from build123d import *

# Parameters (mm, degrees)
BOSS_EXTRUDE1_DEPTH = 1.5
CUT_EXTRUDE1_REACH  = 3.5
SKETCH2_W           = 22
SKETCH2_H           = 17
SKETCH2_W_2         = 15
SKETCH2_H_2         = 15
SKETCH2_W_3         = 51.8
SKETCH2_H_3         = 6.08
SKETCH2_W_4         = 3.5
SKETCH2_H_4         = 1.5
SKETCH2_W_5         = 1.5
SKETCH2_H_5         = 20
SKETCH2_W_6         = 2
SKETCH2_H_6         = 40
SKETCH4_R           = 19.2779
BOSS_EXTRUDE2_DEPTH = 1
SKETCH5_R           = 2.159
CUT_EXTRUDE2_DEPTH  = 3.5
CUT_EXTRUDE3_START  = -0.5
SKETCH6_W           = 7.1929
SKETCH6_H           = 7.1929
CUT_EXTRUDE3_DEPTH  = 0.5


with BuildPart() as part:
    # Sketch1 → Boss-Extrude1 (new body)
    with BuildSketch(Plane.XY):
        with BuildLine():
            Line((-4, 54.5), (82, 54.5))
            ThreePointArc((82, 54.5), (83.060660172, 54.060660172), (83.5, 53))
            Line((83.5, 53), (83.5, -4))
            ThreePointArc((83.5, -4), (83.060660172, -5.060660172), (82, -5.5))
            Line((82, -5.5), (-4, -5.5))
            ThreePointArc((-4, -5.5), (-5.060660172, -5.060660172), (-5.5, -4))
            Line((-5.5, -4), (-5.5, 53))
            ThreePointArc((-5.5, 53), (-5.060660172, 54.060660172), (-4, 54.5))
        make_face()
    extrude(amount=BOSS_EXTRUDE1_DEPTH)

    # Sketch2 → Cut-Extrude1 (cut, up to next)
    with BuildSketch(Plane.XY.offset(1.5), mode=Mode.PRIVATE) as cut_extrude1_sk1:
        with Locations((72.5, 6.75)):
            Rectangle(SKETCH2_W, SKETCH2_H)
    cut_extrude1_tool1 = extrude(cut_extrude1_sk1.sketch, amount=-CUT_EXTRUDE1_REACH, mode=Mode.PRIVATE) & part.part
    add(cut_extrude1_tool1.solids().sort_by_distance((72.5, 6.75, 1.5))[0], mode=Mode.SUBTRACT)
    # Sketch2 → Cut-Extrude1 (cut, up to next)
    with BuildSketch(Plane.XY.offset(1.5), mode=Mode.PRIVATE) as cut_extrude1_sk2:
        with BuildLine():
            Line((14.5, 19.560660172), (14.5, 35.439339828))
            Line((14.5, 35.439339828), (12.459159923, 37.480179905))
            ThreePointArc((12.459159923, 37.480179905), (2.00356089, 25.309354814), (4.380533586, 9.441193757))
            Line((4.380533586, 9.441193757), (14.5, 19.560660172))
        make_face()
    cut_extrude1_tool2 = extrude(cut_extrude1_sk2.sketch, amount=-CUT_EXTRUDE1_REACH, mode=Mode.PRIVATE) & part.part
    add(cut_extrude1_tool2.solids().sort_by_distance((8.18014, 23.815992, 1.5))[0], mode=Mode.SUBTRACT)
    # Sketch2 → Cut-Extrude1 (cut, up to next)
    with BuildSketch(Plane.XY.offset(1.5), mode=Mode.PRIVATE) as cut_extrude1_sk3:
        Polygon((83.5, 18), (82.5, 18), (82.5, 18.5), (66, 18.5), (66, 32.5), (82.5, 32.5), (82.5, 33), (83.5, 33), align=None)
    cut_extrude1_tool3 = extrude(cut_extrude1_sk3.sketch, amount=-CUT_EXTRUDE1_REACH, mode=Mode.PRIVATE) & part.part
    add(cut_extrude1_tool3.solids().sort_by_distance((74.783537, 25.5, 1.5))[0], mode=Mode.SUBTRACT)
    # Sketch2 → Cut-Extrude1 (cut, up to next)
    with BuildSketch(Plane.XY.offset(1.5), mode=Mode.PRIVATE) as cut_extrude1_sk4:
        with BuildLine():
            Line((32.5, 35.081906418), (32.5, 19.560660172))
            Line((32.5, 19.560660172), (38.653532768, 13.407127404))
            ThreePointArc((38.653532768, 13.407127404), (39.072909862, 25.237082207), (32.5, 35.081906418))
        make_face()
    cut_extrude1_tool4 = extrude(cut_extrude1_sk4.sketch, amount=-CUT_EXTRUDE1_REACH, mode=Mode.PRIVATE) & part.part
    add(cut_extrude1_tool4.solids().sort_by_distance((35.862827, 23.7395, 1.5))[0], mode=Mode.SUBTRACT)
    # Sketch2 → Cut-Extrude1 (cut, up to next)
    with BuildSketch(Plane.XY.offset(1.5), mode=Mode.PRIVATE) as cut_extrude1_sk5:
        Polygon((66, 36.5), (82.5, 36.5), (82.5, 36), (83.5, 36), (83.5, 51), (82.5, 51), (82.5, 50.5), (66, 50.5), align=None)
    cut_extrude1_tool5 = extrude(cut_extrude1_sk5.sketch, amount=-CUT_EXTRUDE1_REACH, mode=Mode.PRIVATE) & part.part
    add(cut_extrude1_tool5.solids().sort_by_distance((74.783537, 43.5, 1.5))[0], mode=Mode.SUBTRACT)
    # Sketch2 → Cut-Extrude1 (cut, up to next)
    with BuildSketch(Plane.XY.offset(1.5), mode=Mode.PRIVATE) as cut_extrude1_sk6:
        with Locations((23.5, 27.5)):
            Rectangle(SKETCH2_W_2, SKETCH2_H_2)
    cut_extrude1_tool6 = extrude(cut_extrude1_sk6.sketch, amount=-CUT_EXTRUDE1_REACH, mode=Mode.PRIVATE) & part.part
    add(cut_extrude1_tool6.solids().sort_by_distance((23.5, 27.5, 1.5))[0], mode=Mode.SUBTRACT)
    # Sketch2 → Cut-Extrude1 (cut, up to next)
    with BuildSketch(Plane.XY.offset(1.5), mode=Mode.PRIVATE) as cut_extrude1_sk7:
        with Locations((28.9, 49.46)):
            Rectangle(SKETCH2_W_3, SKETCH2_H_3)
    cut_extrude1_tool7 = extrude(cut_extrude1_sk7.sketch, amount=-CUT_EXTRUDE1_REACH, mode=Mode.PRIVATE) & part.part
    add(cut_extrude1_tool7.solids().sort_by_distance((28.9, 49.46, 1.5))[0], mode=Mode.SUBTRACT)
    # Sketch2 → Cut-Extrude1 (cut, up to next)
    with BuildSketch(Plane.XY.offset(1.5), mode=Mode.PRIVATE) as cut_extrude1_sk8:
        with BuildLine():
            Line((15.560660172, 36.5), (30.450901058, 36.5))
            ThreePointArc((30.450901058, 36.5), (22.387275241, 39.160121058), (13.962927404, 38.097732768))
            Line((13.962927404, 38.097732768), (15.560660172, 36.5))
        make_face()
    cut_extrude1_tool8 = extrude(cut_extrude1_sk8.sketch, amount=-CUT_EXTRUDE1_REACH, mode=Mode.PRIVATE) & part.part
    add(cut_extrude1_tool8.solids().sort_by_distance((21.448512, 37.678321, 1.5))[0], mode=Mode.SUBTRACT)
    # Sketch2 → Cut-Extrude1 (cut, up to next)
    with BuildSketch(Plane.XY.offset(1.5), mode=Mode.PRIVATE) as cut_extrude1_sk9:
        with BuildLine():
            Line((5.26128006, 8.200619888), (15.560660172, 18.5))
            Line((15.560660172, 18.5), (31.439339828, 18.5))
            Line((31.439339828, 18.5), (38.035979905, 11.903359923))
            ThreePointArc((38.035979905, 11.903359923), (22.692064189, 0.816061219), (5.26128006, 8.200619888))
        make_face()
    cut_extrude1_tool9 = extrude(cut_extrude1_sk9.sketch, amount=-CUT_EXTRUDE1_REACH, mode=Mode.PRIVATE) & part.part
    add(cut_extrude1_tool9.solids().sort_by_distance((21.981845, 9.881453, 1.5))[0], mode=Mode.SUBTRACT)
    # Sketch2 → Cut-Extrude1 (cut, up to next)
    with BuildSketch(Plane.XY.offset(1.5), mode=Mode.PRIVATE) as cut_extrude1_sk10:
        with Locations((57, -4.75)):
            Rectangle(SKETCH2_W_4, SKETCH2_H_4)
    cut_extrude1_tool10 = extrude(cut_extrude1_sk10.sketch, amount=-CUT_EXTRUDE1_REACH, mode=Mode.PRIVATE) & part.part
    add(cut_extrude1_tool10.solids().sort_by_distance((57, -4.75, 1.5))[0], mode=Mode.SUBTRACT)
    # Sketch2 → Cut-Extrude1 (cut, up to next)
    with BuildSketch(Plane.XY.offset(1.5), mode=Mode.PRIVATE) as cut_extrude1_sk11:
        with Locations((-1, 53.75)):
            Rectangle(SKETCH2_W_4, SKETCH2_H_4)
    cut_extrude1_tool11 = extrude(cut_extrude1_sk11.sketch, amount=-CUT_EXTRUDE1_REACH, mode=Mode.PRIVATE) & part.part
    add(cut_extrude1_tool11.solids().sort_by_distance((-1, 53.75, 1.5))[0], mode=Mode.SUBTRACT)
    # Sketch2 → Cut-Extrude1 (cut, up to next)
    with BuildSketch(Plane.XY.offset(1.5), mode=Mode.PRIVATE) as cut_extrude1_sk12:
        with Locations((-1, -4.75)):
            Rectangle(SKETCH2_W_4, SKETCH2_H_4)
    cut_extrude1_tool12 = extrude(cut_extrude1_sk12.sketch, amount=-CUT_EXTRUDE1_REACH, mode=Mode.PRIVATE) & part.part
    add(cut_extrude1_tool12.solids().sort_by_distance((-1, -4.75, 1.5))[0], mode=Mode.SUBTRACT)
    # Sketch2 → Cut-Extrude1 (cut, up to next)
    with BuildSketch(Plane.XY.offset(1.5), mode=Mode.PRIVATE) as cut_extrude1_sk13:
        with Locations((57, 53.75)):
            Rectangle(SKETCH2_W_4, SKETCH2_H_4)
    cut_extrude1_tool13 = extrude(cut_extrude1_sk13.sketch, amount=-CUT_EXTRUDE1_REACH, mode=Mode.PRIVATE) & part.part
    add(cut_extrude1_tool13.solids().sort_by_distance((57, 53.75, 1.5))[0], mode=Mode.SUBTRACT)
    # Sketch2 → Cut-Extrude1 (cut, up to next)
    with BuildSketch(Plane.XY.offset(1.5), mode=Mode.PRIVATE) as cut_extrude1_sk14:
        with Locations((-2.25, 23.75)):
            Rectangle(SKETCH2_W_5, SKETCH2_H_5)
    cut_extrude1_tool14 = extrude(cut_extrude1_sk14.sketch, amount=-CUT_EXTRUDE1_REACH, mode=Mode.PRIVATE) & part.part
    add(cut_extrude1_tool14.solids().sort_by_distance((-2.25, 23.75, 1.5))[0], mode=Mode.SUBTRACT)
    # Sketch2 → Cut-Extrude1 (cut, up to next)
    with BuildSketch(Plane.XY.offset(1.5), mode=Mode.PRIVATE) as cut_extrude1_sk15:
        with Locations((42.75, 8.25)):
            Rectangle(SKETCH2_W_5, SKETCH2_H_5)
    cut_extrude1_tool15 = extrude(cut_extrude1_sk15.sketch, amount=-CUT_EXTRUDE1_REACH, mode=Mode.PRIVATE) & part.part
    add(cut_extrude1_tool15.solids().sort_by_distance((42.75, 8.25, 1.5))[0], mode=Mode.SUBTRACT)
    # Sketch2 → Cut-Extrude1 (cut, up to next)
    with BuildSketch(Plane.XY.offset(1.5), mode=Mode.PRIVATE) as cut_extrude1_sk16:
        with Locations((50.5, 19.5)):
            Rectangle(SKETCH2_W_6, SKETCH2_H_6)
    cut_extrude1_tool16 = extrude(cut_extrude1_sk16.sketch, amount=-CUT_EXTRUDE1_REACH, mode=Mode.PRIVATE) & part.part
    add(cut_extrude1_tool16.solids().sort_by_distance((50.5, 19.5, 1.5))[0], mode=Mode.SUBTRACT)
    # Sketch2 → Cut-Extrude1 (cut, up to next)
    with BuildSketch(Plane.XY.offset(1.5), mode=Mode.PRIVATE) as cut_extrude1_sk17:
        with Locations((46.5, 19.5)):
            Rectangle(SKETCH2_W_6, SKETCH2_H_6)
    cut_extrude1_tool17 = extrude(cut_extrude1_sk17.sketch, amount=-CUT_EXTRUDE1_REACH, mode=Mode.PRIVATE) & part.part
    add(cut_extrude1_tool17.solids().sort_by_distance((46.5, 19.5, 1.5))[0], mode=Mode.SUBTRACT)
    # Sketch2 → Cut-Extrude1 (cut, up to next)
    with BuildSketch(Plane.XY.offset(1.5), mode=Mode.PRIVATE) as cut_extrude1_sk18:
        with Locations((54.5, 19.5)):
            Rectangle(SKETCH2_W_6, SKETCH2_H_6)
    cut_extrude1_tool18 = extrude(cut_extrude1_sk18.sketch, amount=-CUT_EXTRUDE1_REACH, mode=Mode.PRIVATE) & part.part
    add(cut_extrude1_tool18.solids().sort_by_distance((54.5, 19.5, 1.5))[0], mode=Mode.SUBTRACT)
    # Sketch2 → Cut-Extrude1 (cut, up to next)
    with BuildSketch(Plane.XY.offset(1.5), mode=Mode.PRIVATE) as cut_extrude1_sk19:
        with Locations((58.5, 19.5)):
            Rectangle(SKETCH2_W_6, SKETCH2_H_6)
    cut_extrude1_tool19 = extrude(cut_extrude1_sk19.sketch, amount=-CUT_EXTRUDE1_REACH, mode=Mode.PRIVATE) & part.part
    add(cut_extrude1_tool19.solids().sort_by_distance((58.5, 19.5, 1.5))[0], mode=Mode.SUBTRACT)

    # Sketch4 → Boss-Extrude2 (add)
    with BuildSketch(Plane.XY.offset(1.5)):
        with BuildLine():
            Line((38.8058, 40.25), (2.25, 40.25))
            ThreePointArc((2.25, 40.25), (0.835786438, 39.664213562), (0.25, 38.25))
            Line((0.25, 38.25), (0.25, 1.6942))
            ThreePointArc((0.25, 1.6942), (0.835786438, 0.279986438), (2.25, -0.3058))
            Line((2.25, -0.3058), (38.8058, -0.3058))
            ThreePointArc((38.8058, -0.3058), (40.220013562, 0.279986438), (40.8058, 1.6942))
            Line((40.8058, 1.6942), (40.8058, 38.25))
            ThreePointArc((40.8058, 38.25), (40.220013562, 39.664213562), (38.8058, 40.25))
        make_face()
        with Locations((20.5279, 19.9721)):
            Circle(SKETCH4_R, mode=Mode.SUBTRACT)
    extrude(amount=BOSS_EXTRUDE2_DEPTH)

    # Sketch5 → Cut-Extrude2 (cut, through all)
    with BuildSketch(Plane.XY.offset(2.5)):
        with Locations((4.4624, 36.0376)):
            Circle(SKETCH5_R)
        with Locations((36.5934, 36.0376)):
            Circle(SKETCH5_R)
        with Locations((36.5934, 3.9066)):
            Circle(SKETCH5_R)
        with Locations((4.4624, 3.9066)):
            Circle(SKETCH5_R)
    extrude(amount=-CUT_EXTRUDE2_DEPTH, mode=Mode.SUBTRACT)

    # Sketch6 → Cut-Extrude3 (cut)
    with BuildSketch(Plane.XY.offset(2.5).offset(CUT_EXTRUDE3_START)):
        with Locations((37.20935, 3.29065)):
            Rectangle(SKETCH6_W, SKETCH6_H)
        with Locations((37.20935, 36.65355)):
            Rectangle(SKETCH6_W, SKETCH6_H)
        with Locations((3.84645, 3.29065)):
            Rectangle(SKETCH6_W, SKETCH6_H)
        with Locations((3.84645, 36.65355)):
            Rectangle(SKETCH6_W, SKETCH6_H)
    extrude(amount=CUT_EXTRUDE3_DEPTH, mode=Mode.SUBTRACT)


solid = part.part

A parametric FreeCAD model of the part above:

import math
import FreeCAD as App
import Part
import Sketcher
Q = App.Units.Quantity


def add_polygon(sketch, points):
    """Adds a closed chain of lines whose ends are joined by coincident constraints."""
    first, n = sketch.GeometryCount, len(points)
    for a, b in zip(points, points[1:] + points[:1]):
        sketch.addGeometry(Part.LineSegment(App.Vector(*a, 0), App.Vector(*b, 0)), False)
    for i in range(n):
        sketch.addConstraint(Sketcher.Constraint("Coincident", first + i, 2, first + (i + 1) % n, 1))

doc = App.newDocument("Part")
body = doc.addObject("PartDesign::Body", "Body")

# Sketch on XY plane
sketch1 = body.newObject("Sketcher::SketchObject", "Sketch")
sketch1.AttachmentSupport = (doc.getObject("XY_Plane"), [""])
sketch1.MapMode = "FlatFace"
sketch1.addGeometry([
    Part.LineSegment(App.Vector(82, 54.5, 0), App.Vector(-4, 54.5, 0)),  # 0
    Part.ArcOfCircle(Part.Circle(App.Vector(-4, 53, 0), App.Vector(0, 0, 1), 1.5), math.radians(90), math.radians(180)),  # 1
    Part.LineSegment(App.Vector(-5.5, 53, 0), App.Vector(-5.5, -4, 0)),  # 2
    Part.ArcOfCircle(Part.Circle(App.Vector(-4, -4, 0), App.Vector(0, 0, 1), 1.5), math.radians(180), math.radians(270)),  # 3
    Part.LineSegment(App.Vector(-4, -5.5, 0), App.Vector(82, -5.5, 0)),  # 4
    Part.ArcOfCircle(Part.Circle(App.Vector(82, -4, 0), App.Vector(0, 0, 1), 1.5), math.radians(-90), math.radians(0)),  # 5
    Part.LineSegment(App.Vector(83.5, -4, 0), App.Vector(83.5, 53, 0)),  # 6
    Part.ArcOfCircle(Part.Circle(App.Vector(82, 53, 0), App.Vector(0, 0, 1), 1.5), math.radians(0), math.radians(90)),  # 7
], False)
sketch1.addConstraint([
    Sketcher.Constraint("Tangent", 0, 2, 1, 1),
    Sketcher.Constraint("Tangent", 1, 2, 2, 1),
    Sketcher.Constraint("Tangent", 2, 2, 3, 1),
    Sketcher.Constraint("Tangent", 3, 2, 4, 1),
    Sketcher.Constraint("Tangent", 4, 2, 5, 1),
    Sketcher.Constraint("Tangent", 5, 2, 6, 1),
    Sketcher.Constraint("Tangent", 6, 2, 7, 1),
    Sketcher.Constraint("Tangent", 7, 2, 0, 1),
    Sketcher.Constraint("Horizontal", 0),
    Sketcher.Constraint("Vertical", 2),
    Sketcher.Constraint("Horizontal", 4),
    Sketcher.Constraint("Vertical", 6),
    Sketcher.Constraint("Equal", 1, 3),
    Sketcher.Constraint("Equal", 3, 5),
    Sketcher.Constraint("Equal", 5, 7),
    Sketcher.Constraint("Radius", 1, 1.5),
    Sketcher.Constraint("DistanceX", 0, 2, 0, 1, 86.0),
    Sketcher.Constraint("DistanceY", 2, 2, 2, 1, 57.0),
    Sketcher.Constraint("DistanceX", 1, 3, -1, 1, 4.0),
    Sketcher.Constraint("DistanceY", -1, 1, 1, 3, 53.0),
])
pad1 = body.newObject("PartDesign::Pad", "Pad")
pad1.Profile = sketch1
pad1.Length = 1.5

# Sketch on XY plane
sketch2 = body.newObject("Sketcher::SketchObject", "Sketch001")
sketch2.AttachmentSupport = (doc.getObject("XY_Plane"), [""])
sketch2.MapMode = "FlatFace"
sketch2.AttachmentOffset = App.Placement(App.Vector(0, 0, 1.5), App.Rotation())
add_polygon(sketch2, [(62, 15), (62, -2), (84, -2), (84, 15)])  # lines 0-3
sketch2.addConstraint([
    Sketcher.Constraint("Vertical", 0),
    Sketcher.Constraint("Horizontal", 1),
    Sketcher.Constraint("Vertical", 2),
    Sketcher.Constraint("Horizontal", 3),
    Sketcher.Constraint("DistanceX", 1, 1, 1, 2, 22.0),
    Sketcher.Constraint("DistanceY", 0, 2, 0, 1, 17.0),
    Sketcher.Constraint("DistanceX", -1, 1, 0, 2, 61.5),
    Sketcher.Constraint("DistanceY", 0, 2, -1, 1, 1.75),
])
pocket1 = body.newObject("PartDesign::Pocket", "Pocket")
pocket1.Profile = sketch2
pocket1.Type = "UpToFirst"

# Sketch on XY plane
sketch3 = body.newObject("Sketcher::SketchObject", "Sketch002")
sketch3.AttachmentSupport = (doc.getObject("XY_Plane"), [""])
sketch3.MapMode = "FlatFace"
sketch3.AttachmentOffset = App.Placement(App.Vector(0, 0, 1.5), App.Rotation())
sketch3.addGeometry([
    Part.LineSegment(App.Vector(14.5, 19.6, 0), App.Vector(14.5, 35.4, 0)),
    Part.LineSegment(App.Vector(14.5, 35.4, 0), App.Vector(12.5, 37.5, 0)),
    Part.ArcOfCircle(Part.Circle(App.Vector(20.5, 20, 0), App.Vector(0, 0, 1), 19.3), math.radians(115), math.radians(213)),
    Part.LineSegment(App.Vector(4.4, 9.4, 0), App.Vector(14.5, 19.6, 0)),
], False)
sketch3.addConstraint([
    Sketcher.Constraint("Coincident", 0, 2, 1, 1),
    Sketcher.Constraint("Coincident", 1, 2, 2, 1),
    Sketcher.Constraint("Coincident", 2, 2, 3, 1),
    Sketcher.Constraint("Coincident", 3, 2, 0, 1),
    Sketcher.Constraint("Vertical", 0),
    Sketcher.Constraint("Perpendicular", 1, 3),
    Sketcher.Constraint("Angle", 1, Q("135 deg")),
    Sketcher.Constraint("DistanceX", -1, 1, 0, 2, 14.5),
    Sketcher.Constraint("Radius", 2, 19.2779),
    Sketcher.Constraint("DistanceY", 0, 1, 0, 2, 15.87868),
    Sketcher.Constraint("DistanceX", -1, 1, 2, 3, 20.5279),
    Sketcher.Constraint("DistanceY", -1, 1, 2, 3, 19.9721),
    Sketcher.Constraint("DistanceY", -1, 1, 0, 2, 35.43934),
])
pocket2 = body.newObject("PartDesign::Pocket", "Pocket001")
pocket2.Profile = sketch3
pocket2.Type = "UpToFirst"

# Sketch on XY plane
sketch4 = body.newObject("Sketcher::SketchObject", "Sketch003")
sketch4.AttachmentSupport = (doc.getObject("XY_Plane"), [""])
sketch4.MapMode = "FlatFace"
sketch4.AttachmentOffset = App.Placement(App.Vector(0, 0, 1.5), App.Rotation())
add_polygon(sketch4, [(82.5, 18), (83.5, 18), (83.5, 33), (82.5, 33), (82.5, 32.5), (66, 32.5), (66, 18.5), (82.5, 18.5)])  # lines 0-7
sketch4.addConstraint([
    Sketcher.Constraint("Horizontal", 0),
    Sketcher.Constraint("Vertical", 1),
    Sketcher.Constraint("Horizontal", 2),
    Sketcher.Constraint("Vertical", 3),
    Sketcher.Constraint("Horizontal", 4),
    Sketcher.Constraint("Vertical", 5),
    Sketcher.Constraint("Horizontal", 6),
    Sketcher.Constraint("Vertical", 7),
    Sketcher.Constraint("Vertical", 3, 2, 6, 2),
    Sketcher.Constraint("Equal", 3, 7),
    Sketcher.Constraint("DistanceX", 0, 1, 0, 2, 1.0),
    Sketcher.Constraint("DistanceY", 1, 1, 1, 2, 15.0),
    Sketcher.Constraint("DistanceY", 5, 2, 5, 1, 14.0),
    Sketcher.Constraint("DistanceX", 4, 2, 4, 1, 16.5),
    Sketcher.Constraint("DistanceY", -1, 1, 0, 2, 18.0),
    Sketcher.Constraint("DistanceX", -1, 1, 4, 2, 66.0),
])
pocket3 = body.newObject("PartDesign::Pocket", "Pocket002")
pocket3.Profile = sketch4
pocket3.Type = "UpToFirst"

# Sketch on XY plane
sketch5 = body.newObject("Sketcher::SketchObject", "Sketch004")
sketch5.AttachmentSupport = (doc.getObject("XY_Plane"), [""])
sketch5.MapMode = "FlatFace"
sketch5.AttachmentOffset = App.Placement(App.Vector(0, 0, 1.5), App.Rotation())
sketch5.addGeometry([
    Part.LineSegment(App.Vector(32, 35, 0), App.Vector(32, 20, 0)),
    Part.LineSegment(App.Vector(32, 20, 0), App.Vector(39, 13, 0)),
    Part.ArcOfCircle(Part.Circle(App.Vector(21, 20, 0), App.Vector(0, 0, 1), 19), math.radians(-20), math.radians(52)),
], False)
sketch5.addConstraint([
    Sketcher.Constraint("Coincident", 0, 2, 1, 1),
    Sketcher.Constraint("Coincident", 1, 2, 2, 1),
    Sketcher.Constraint("Coincident", 2, 2, 0, 1),
    Sketcher.Constraint("Vertical", 0),
    Sketcher.Constraint("Angle", 1, Q("-45 deg")),
    Sketcher.Constraint("DistanceX", -1, 1, 0, 2, 32.5),
    Sketcher.Constraint("Radius", 2, 19.2779),
    Sketcher.Constraint("DistanceX", -1, 1, 2, 3, 20.5279),
    Sketcher.Constraint("DistanceY", -1, 1, 2, 3, 19.9721),
    Sketcher.Constraint("Distance", 1, 8.702409),
])
pocket4 = body.newObject("PartDesign::Pocket", "Pocket003")
pocket4.Profile = sketch5
pocket4.Type = "UpToFirst"

# Sketch on XY plane
sketch6 = body.newObject("Sketcher::SketchObject", "Sketch005")
sketch6.AttachmentSupport = (doc.getObject("XY_Plane"), [""])
sketch6.MapMode = "FlatFace"
sketch6.AttachmentOffset = App.Placement(App.Vector(0, 0, 1.5), App.Rotation())
add_polygon(sketch6, [(66, 36.5), (82.5, 36.5), (82.5, 36), (83.5, 36), (83.5, 51), (82.5, 51), (82.5, 50.5), (66, 50.5)])  # lines 0-7
sketch6.addConstraint([
    Sketcher.Constraint("Horizontal", 0),
    Sketcher.Constraint("Vertical", 1),
    Sketcher.Constraint("Horizontal", 2),
    Sketcher.Constraint("Vertical", 3),
    Sketcher.Constraint("Horizontal", 4),
    Sketcher.Constraint("Vertical", 5),
    Sketcher.Constraint("Horizontal", 6),
    Sketcher.Constraint("Vertical", 7),
    Sketcher.Constraint("Vertical", 1, 2, 4, 2),
    Sketcher.Constraint("Equal", 1, 5),
    Sketcher.Constraint("DistanceX", 2, 1, 2, 2, 1.0),
    Sketcher.Constraint("DistanceY", 3, 1, 3, 2, 15.0),
    Sketcher.Constraint("DistanceY", 7, 2, 7, 1, 14.0),
    Sketcher.Constraint("DistanceX", 0, 1, 0, 2, 16.5),
    Sketcher.Constraint("DistanceY", -1, 1, 1, 2, 36.0),
    Sketcher.Constraint("DistanceX", -1, 1, 6, 2, 66.0),
])
pocket5 = body.newObject("PartDesign::Pocket", "Pocket004")
pocket5.Profile = sketch6
pocket5.Type = "UpToFirst"

# Sketch on XY plane
sketch7 = body.newObject("Sketcher::SketchObject", "Sketch006")
sketch7.AttachmentSupport = (doc.getObject("XY_Plane"), [""])
sketch7.MapMode = "FlatFace"
sketch7.AttachmentOffset = App.Placement(App.Vector(0, 0, 1.5), App.Rotation())
add_polygon(sketch7, [(16, 35), (16, 20), (31, 20), (31, 35)])  # lines 0-3
sketch7.addConstraint([
    Sketcher.Constraint("Vertical", 0),
    Sketcher.Constraint("Horizontal", 1),
    Sketcher.Constraint("Vertical", 2),
    Sketcher.Constraint("Horizontal", 3),
    Sketcher.Constraint("Equal", 3, 0),
    Sketcher.Constraint("DistanceX", 1, 1, 1, 2, 15.0),
    Sketcher.Constraint("DistanceX", -1, 1, 0, 2, 16.0),
    Sketcher.Constraint("DistanceY", -1, 1, 0, 2, 20.0),
])
pocket6 = body.newObject("PartDesign::Pocket", "Pocket005")
pocket6.Profile = sketch7
pocket6.Type = "UpToFirst"

# Sketch on XY plane
sketch8 = body.newObject("Sketcher::SketchObject", "Sketch007")
sketch8.AttachmentSupport = (doc.getObject("XY_Plane"), [""])
sketch8.MapMode = "FlatFace"
sketch8.AttachmentOffset = App.Placement(App.Vector(0, 0, 1.5), App.Rotation())
add_polygon(sketch8, [(3, 52), (3, 46), (55, 46), (55, 52)])  # lines 0-3
sketch8.addConstraint([
    Sketcher.Constraint("Vertical", 0),
    Sketcher.Constraint("Horizontal", 1),
    Sketcher.Constraint("Vertical", 2),
    Sketcher.Constraint("Horizontal", 3),
    Sketcher.Constraint("DistanceX", 1, 1, 1, 2, 51.8),
    Sketcher.Constraint("DistanceX", -1, 1, 0, 2, 3.0),
    Sketcher.Constraint("DistanceY", 0, 2, 0, 1, 6.08),
    Sketcher.Constraint("DistanceY", -1, 1, 2, 2, 52.5),
])
pocket7 = body.newObject("PartDesign::Pocket", "Pocket006")
pocket7.Profile = sketch8
pocket7.Type = "UpToFirst"

# Sketch on XY plane
sketch9 = body.newObject("Sketcher::SketchObject", "Sketch008")
sketch9.AttachmentSupport = (doc.getObject("XY_Plane"), [""])
sketch9.MapMode = "FlatFace"
sketch9.AttachmentOffset = App.Placement(App.Vector(0, 0, 1.5), App.Rotation())
sketch9.addGeometry([
    Part.LineSegment(App.Vector(15.6, 36.5, 0), App.Vector(30.5, 36.5, 0)),
    Part.ArcOfCircle(Part.Circle(App.Vector(20.5, 20, 0), App.Vector(0, 0, 1), 19.3), math.radians(59), math.radians(110)),
    Part.LineSegment(App.Vector(14, 38.1, 0), App.Vector(15.6, 36.5, 0)),
], False)
sketch9.addConstraint([
    Sketcher.Constraint("Coincident", 0, 2, 1, 1),
    Sketcher.Constraint("Coincident", 1, 2, 2, 1),
    Sketcher.Constraint("Coincident", 2, 2, 0, 1),
    Sketcher.Constraint("Horizontal", 0),
    Sketcher.Constraint("Angle", 2, Q("-45 deg")),
    Sketcher.Constraint("DistanceY", -1, 1, 0, 2, 36.5),
    Sketcher.Constraint("Radius", 1, 19.2779),
    Sketcher.Constraint("DistanceX", 1, 3, 0, 2, 9.923001),
    Sketcher.Constraint("DistanceX", 0, 1, 0, 2, 14.890241),
    Sketcher.Constraint("DistanceX", -1, 1, 1, 3, 20.5279),
])
pocket8 = body.newObject("PartDesign::Pocket", "Pocket007")
pocket8.Profile = sketch9
pocket8.Type = "UpToFirst"

# Sketch on XY plane
sketch10 = body.newObject("Sketcher::SketchObject", "Sketch009")
sketch10.AttachmentSupport = (doc.getObject("XY_Plane"), [""])
sketch10.MapMode = "FlatFace"
sketch10.AttachmentOffset = App.Placement(App.Vector(0, 0, 1.5), App.Rotation())
sketch10.addGeometry([
    Part.LineSegment(App.Vector(16, 18, 0), App.Vector(5, 8, 0)),
    Part.ArcOfCircle(Part.Circle(App.Vector(21, 20, 0), App.Vector(0, 0, 1), 19), math.radians(-142), math.radians(-25)),
    Part.LineSegment(App.Vector(38, 12, 0), App.Vector(31, 18, 0)),
    Part.LineSegment(App.Vector(31, 18, 0), App.Vector(16, 18, 0)),
], False)
sketch10.addConstraint([
    Sketcher.Constraint("Coincident", 0, 2, 1, 1),
    Sketcher.Constraint("Coincident", 1, 2, 2, 1),
    Sketcher.Constraint("Coincident", 2, 2, 3, 1),
    Sketcher.Constraint("Coincident", 3, 2, 0, 1),
    Sketcher.Constraint("Horizontal", 3),
    Sketcher.Constraint("Perpendicular", 0, 2),
    Sketcher.Constraint("Angle", 0, Q("-135 deg")),
    Sketcher.Constraint("DistanceY", -1, 1, 2, 2, 18.5),
    Sketcher.Constraint("Radius", 1, 19.2779),
    Sketcher.Constraint("DistanceX", 3, 2, 3, 1, 15.87868),
    Sketcher.Constraint("DistanceX", -1, 1, 1, 3, 20.5279),
    Sketcher.Constraint("DistanceY", -1, 1, 1, 3, 19.9721),
    Sketcher.Constraint("DistanceX", 0, 2, 1, 2, 32.7747),
])
pocket9 = body.newObject("PartDesign::Pocket", "Pocket008")
pocket9.Profile = sketch10
pocket9.Type = "UpToFirst"

# Sketch on XY plane
sketch11 = body.newObject("Sketcher::SketchObject", "Sketch010")
sketch11.AttachmentSupport = (doc.getObject("XY_Plane"), [""])
sketch11.MapMode = "FlatFace"
sketch11.AttachmentOffset = App.Placement(App.Vector(0, 0, 1.5), App.Rotation())
add_polygon(sketch11, [(55.2, -4), (55.2, -5.5), (58.8, -5.5), (58.8, -4)])  # lines 0-3
sketch11.addConstraint([
    Sketcher.Constraint("Vertical", 0),
    Sketcher.Constraint("Horizontal", 1),
    Sketcher.Constraint("Vertical", 2),
    Sketcher.Constraint("Horizontal", 3),
    Sketcher.Constraint("DistanceX", 1, 1, 1, 2, 3.5),
    Sketcher.Constraint("DistanceY", 0, 2, 0, 1, 1.5),
    Sketcher.Constraint("DistanceY", 2, 2, -1, 1, 4.0),
    Sketcher.Constraint("DistanceX", -1, 1, 0, 2, 55.25),
])
pocket10 = body.newObject("PartDesign::Pocket", "Pocket009")
pocket10.Profile = sketch11
pocket10.Type = "UpToFirst"

# Sketch on XY plane
sketch12 = body.newObject("Sketcher::SketchObject", "Sketch011")
sketch12.AttachmentSupport = (doc.getObject("XY_Plane"), [""])
sketch12.MapMode = "FlatFace"
sketch12.AttachmentOffset = App.Placement(App.Vector(0, 0, 1.5), App.Rotation())
add_polygon(sketch12, [(-2.8, 54.5), (-2.8, 53), (0.8, 53), (0.8, 54.5)])  # lines 0-3
sketch12.addConstraint([
    Sketcher.Constraint("Vertical", 0),
    Sketcher.Constraint("Horizontal", 1),
    Sketcher.Constraint("Vertical", 2),
    Sketcher.Constraint("Horizontal", 3),
    Sketcher.Constraint("DistanceX", 1, 1, 1, 2, 3.5),
    Sketcher.Constraint("DistanceY", 0, 2, 0, 1, 1.5),
    Sketcher.Constraint("DistanceY", -1, 1, 0, 2, 53.0),
    Sketcher.Constraint("DistanceX", 0, 2, -1, 1, 2.75),
])
pocket11 = body.newObject("PartDesign::Pocket", "Pocket010")
pocket11.Profile = sketch12
pocket11.Type = "UpToFirst"

# Sketch on XY plane
sketch13 = body.newObject("Sketcher::SketchObject", "Sketch012")
sketch13.AttachmentSupport = (doc.getObject("XY_Plane"), [""])
sketch13.MapMode = "FlatFace"
sketch13.AttachmentOffset = App.Placement(App.Vector(0, 0, 1.5), App.Rotation())
add_polygon(sketch13, [(-2.8, -4), (-2.8, -5.5), (0.8, -5.5), (0.8, -4)])  # lines 0-3
sketch13.addConstraint([
    Sketcher.Constraint("Vertical", 0),
    Sketcher.Constraint("Horizontal", 1),
    Sketcher.Constraint("Vertical", 2),
    Sketcher.Constraint("Horizontal", 3),
    Sketcher.Constraint("DistanceX", 1, 1, 1, 2, 3.5),
    Sketcher.Constraint("DistanceY", 0, 2, 0, 1, 1.5),
    Sketcher.Constraint("DistanceY", 2, 2, -1, 1, 4.0),
    Sketcher.Constraint("DistanceX", 0, 2, -1, 1, 2.75),
])
pocket12 = body.newObject("PartDesign::Pocket", "Pocket011")
pocket12.Profile = sketch13
pocket12.Type = "UpToFirst"

# Sketch on XY plane
sketch14 = body.newObject("Sketcher::SketchObject", "Sketch013")
sketch14.AttachmentSupport = (doc.getObject("XY_Plane"), [""])
sketch14.MapMode = "FlatFace"
sketch14.AttachmentOffset = App.Placement(App.Vector(0, 0, 1.5), App.Rotation())
add_polygon(sketch14, [(55.2, 54.5), (55.2, 53), (58.8, 53), (58.8, 54.5)])  # lines 0-3
sketch14.addConstraint([
    Sketcher.Constraint("Vertical", 0),
    Sketcher.Constraint("Horizontal", 1),
    Sketcher.Constraint("Vertical", 2),
    Sketcher.Constraint("Horizontal", 3),
    Sketcher.Constraint("DistanceX", 1, 1, 1, 2, 3.5),
    Sketcher.Constraint("DistanceY", 0, 2, 0, 1, 1.5),
    Sketcher.Constraint("DistanceY", -1, 1, 0, 2, 53.0),
    Sketcher.Constraint("DistanceX", -1, 1, 0, 2, 55.25),
])
pocket13 = body.newObject("PartDesign::Pocket", "Pocket012")
pocket13.Profile = sketch14
pocket13.Type = "UpToFirst"

# Sketch on XY plane
sketch15 = body.newObject("Sketcher::SketchObject", "Sketch014")
sketch15.AttachmentSupport = (doc.getObject("XY_Plane"), [""])
sketch15.MapMode = "FlatFace"
sketch15.AttachmentOffset = App.Placement(App.Vector(0, 0, 1.5), App.Rotation())
add_polygon(sketch15, [(-3, 33.8), (-3, 13.8), (-1.5, 13.8), (-1.5, 33.8)])  # lines 0-3
sketch15.addConstraint([
    Sketcher.Constraint("Vertical", 0),
    Sketcher.Constraint("Horizontal", 1),
    Sketcher.Constraint("Vertical", 2),
    Sketcher.Constraint("Horizontal", 3),
    Sketcher.Constraint("DistanceY", 0, 2, 0, 1, 20.0),
    Sketcher.Constraint("DistanceX", 1, 1, 1, 2, 1.5),
    Sketcher.Constraint("DistanceX", 0, 2, -1, 1, 3.0),
    Sketcher.Constraint("DistanceY", -1, 1, 0, 2, 13.75),
])
pocket14 = body.newObject("PartDesign::Pocket", "Pocket013")
pocket14.Profile = sketch15
pocket14.Type = "UpToFirst"

# Sketch on XY plane
sketch16 = body.newObject("Sketcher::SketchObject", "Sketch015")
sketch16.AttachmentSupport = (doc.getObject("XY_Plane"), [""])
sketch16.MapMode = "FlatFace"
sketch16.AttachmentOffset = App.Placement(App.Vector(0, 0, 1.5), App.Rotation())
add_polygon(sketch16, [(42, 18.2), (42, -1.8), (43.5, -1.8), (43.5, 18.2)])  # lines 0-3
sketch16.addConstraint([
    Sketcher.Constraint("Vertical", 0),
    Sketcher.Constraint("Horizontal", 1),
    Sketcher.Constraint("Vertical", 2),
    Sketcher.Constraint("Horizontal", 3),
    Sketcher.Constraint("DistanceY", 0, 2, 0, 1, 20.0),
    Sketcher.Constraint("DistanceX", 1, 1, 1, 2, 1.5),
    Sketcher.Constraint("DistanceX", -1, 1, 0, 2, 42.0),
    Sketcher.Constraint("DistanceY", 0, 2, -1, 1, 1.75),
])
pocket15 = body.newObject("PartDesign::Pocket", "Pocket014")
pocket15.Profile = sketch16
pocket15.Type = "UpToFirst"

# Sketch on XY plane
sketch17 = body.newObject("Sketcher::SketchObject", "Sketch016")
sketch17.AttachmentSupport = (doc.getObject("XY_Plane"), [""])
sketch17.MapMode = "FlatFace"
sketch17.AttachmentOffset = App.Placement(App.Vector(0, 0, 1.5), App.Rotation())
add_polygon(sketch17, [(49.5, 39.5), (49.5, -0.5), (51.5, -0.5), (51.5, 39.5)])  # lines 0-3
sketch17.addConstraint([
    Sketcher.Constraint("Vertical", 0),
    Sketcher.Constraint("Horizontal", 1),
    Sketcher.Constraint("Vertical", 2),
    Sketcher.Constraint("Horizontal", 3),
    Sketcher.Constraint("DistanceX", 1, 1, 1, 2, 2.0),
    Sketcher.Constraint("DistanceY", 0, 2, 0, 1, 40.0),
    Sketcher.Constraint("DistanceX", -1, 1, 0, 2, 49.5),
    Sketcher.Constraint("DistanceY", 0, 2, -1, 1, 0.5),
])
pocket16 = body.newObject("PartDesign::Pocket", "Pocket015")
pocket16.Profile = sketch17
pocket16.Type = "UpToFirst"

# Sketch on XY plane
sketch18 = body.newObject("Sketcher::SketchObject", "Sketch017")
sketch18.AttachmentSupport = (doc.getObject("XY_Plane"), [""])
sketch18.MapMode = "FlatFace"
sketch18.AttachmentOffset = App.Placement(App.Vector(0, 0, 1.5), App.Rotation())
add_polygon(sketch18, [(45.5, 39.5), (45.5, -0.5), (47.5, -0.5), (47.5, 39.5)])  # lines 0-3
sketch18.addConstraint([
    Sketcher.Constraint("Vertical", 0),
    Sketcher.Constraint("Horizontal", 1),
    Sketcher.Constraint("Vertical", 2),
    Sketcher.Constraint("Horizontal", 3),
    Sketcher.Constraint("DistanceX", 1, 1, 1, 2, 2.0),
    Sketcher.Constraint("DistanceY", 0, 2, 0, 1, 40.0),
    Sketcher.Constraint("DistanceX", -1, 1, 0, 2, 45.5),
    Sketcher.Constraint("DistanceY", 0, 2, -1, 1, 0.5),
])
pocket17 = body.newObject("PartDesign::Pocket", "Pocket016")
pocket17.Profile = sketch18
pocket17.Type = "UpToFirst"

# Sketch on XY plane
sketch19 = body.newObject("Sketcher::SketchObject", "Sketch018")
sketch19.AttachmentSupport = (doc.getObject("XY_Plane"), [""])
sketch19.MapMode = "FlatFace"
sketch19.AttachmentOffset = App.Placement(App.Vector(0, 0, 1.5), App.Rotation())
add_polygon(sketch19, [(53.5, 39.5), (53.5, -0.5), (55.5, -0.5), (55.5, 39.5)])  # lines 0-3
sketch19.addConstraint([
    Sketcher.Constraint("Vertical", 0),
    Sketcher.Constraint("Horizontal", 1),
    Sketcher.Constraint("Vertical", 2),
    Sketcher.Constraint("Horizontal", 3),
    Sketcher.Constraint("DistanceX", 1, 1, 1, 2, 2.0),
    Sketcher.Constraint("DistanceY", 0, 2, 0, 1, 40.0),
    Sketcher.Constraint("DistanceX", -1, 1, 0, 2, 53.5),
    Sketcher.Constraint("DistanceY", 0, 2, -1, 1, 0.5),
])
pocket18 = body.newObject("PartDesign::Pocket", "Pocket017")
pocket18.Profile = sketch19
pocket18.Type = "UpToFirst"

# Sketch on XY plane
sketch20 = body.newObject("Sketcher::SketchObject", "Sketch019")
sketch20.AttachmentSupport = (doc.getObject("XY_Plane"), [""])
sketch20.MapMode = "FlatFace"
sketch20.AttachmentOffset = App.Placement(App.Vector(0, 0, 1.5), App.Rotation())
add_polygon(sketch20, [(57.5, 39.5), (57.5, -0.5), (59.5, -0.5), (59.5, 39.5)])  # lines 0-3
sketch20.addConstraint([
    Sketcher.Constraint("Vertical", 0),
    Sketcher.Constraint("Horizontal", 1),
    Sketcher.Constraint("Vertical", 2),
    Sketcher.Constraint("Horizontal", 3),
    Sketcher.Constraint("DistanceX", 1, 1, 1, 2, 2.0),
    Sketcher.Constraint("DistanceY", 0, 2, 0, 1, 40.0),
    Sketcher.Constraint("DistanceX", -1, 1, 0, 2, 57.5),
    Sketcher.Constraint("DistanceY", 0, 2, -1, 1, 0.5),
])
pocket19 = body.newObject("PartDesign::Pocket", "Pocket018")
pocket19.Profile = sketch20
pocket19.Type = "UpToFirst"

# Sketch on XY plane
sketch21 = body.newObject("Sketcher::SketchObject", "Sketch020")
sketch21.AttachmentSupport = (doc.getObject("XY_Plane"), [""])
sketch21.MapMode = "FlatFace"
sketch21.AttachmentOffset = App.Placement(App.Vector(0, 0, 1.5), App.Rotation())
sketch21.addGeometry([
    Part.LineSegment(App.Vector(38.8, 40.2, 0), App.Vector(2.2, 40.2, 0)),  # 0
    Part.ArcOfCircle(Part.Circle(App.Vector(2.3, 38.2, 0), App.Vector(0, 0, 1), 2), math.radians(90), math.radians(180)),  # 1
    Part.LineSegment(App.Vector(0.2, 38.2, 0), App.Vector(0.2, 1.7, 0)),  # 2
    Part.ArcOfCircle(Part.Circle(App.Vector(2.3, 1.7, 0), App.Vector(0, 0, 1), 2), math.radians(-180), math.radians(-90)),  # 3
    Part.LineSegment(App.Vector(2.2, -0.3, 0), App.Vector(38.8, -0.3, 0)),  # 4
    Part.ArcOfCircle(Part.Circle(App.Vector(38.8, 1.7, 0), App.Vector(0, 0, 1), 2), math.radians(-90), math.radians(0)),  # 5
    Part.LineSegment(App.Vector(40.8, 1.7, 0), App.Vector(40.8, 38.2, 0)),  # 6
    Part.ArcOfCircle(Part.Circle(App.Vector(38.8, 38.2, 0), App.Vector(0, 0, 1), 2), math.radians(0), math.radians(90)),  # 7
    Part.Circle(App.Vector(20.5, 20, 0), App.Vector(0, 0, 1), 19.3),  # 8
], False)
sketch21.addConstraint([
    Sketcher.Constraint("Tangent", 0, 2, 1, 1),
    Sketcher.Constraint("Tangent", 1, 2, 2, 1),
    Sketcher.Constraint("Tangent", 2, 2, 3, 1),
    Sketcher.Constraint("Tangent", 3, 2, 4, 1),
    Sketcher.Constraint("Tangent", 4, 2, 5, 1),
    Sketcher.Constraint("Tangent", 5, 2, 6, 1),
    Sketcher.Constraint("Tangent", 6, 2, 7, 1),
    Sketcher.Constraint("Tangent", 7, 2, 0, 1),
    Sketcher.Constraint("Horizontal", 0),
    Sketcher.Constraint("Vertical", 2),
    Sketcher.Constraint("Horizontal", 4),
    Sketcher.Constraint("Vertical", 6),
    Sketcher.Constraint("Equal", 1, 3),
    Sketcher.Constraint("Equal", 3, 5),
    Sketcher.Constraint("Equal", 5, 7),
    Sketcher.Constraint("Equal", 4, 2),
    Sketcher.Constraint("Radius", 1, 2.0),
    Sketcher.Constraint("Diameter", 8, 38.5558),
    Sketcher.Constraint("DistanceX", -1, 1, 1, 3, 2.25),
    Sketcher.Constraint("DistanceY", -1, 1, 1, 3, 38.25),
    Sketcher.Constraint("DistanceX", 0, 2, 0, 1, 36.5558),
    Sketcher.Constraint("DistanceX", -1, 1, 8, 3, 20.5279),
    Sketcher.Constraint("DistanceY", -1, 1, 8, 3, 19.9721),
])
pad2 = body.newObject("PartDesign::Pad", "Pad001")
pad2.Profile = sketch21
pad2.Length = 1

# Sketch on XY plane
sketch22 = body.newObject("Sketcher::SketchObject", "Sketch021")
sketch22.AttachmentSupport = (doc.getObject("XY_Plane"), [""])
sketch22.MapMode = "FlatFace"
sketch22.AttachmentOffset = App.Placement(App.Vector(0, 0, 2.5), App.Rotation())
sketch22.addGeometry([
    Part.Circle(App.Vector(4.5, 36, 0), App.Vector(0, 0, 1), 2.2),
    Part.Circle(App.Vector(36.6, 36, 0), App.Vector(0, 0, 1), 2.2),
    Part.Circle(App.Vector(36.6, 3.9, 0), App.Vector(0, 0, 1), 2.2),
    Part.Circle(App.Vector(4.5, 3.9, 0), App.Vector(0, 0, 1), 2.2),
], False)
sketch22.addConstraint([
    Sketcher.Constraint("Equal", 0, 1),
    Sketcher.Constraint("Equal", 1, 2),
    Sketcher.Constraint("Equal", 2, 3),
    Sketcher.Constraint("Horizontal", 0, 3, 1, 3),
    Sketcher.Constraint("Horizontal", 2, 3, 3, 3),
    Sketcher.Constraint("Vertical", 1, 3, 2, 3),
    Sketcher.Constraint("Vertical", 0, 3, 3, 3),
    Sketcher.Constraint("Diameter", 0, 4.318),
    Sketcher.Constraint("DistanceX", 0, 3, 1, 3, 32.131),
    Sketcher.Constraint("DistanceY", 2, 3, 1, 3, 32.131),
    Sketcher.Constraint("DistanceX", -1, 1, 0, 3, 4.4624),
    Sketcher.Constraint("DistanceY", -1, 1, 0, 3, 36.0376),
])
pocket20 = body.newObject("PartDesign::Pocket", "Pocket019")
pocket20.Profile = sketch22
pocket20.Type = "ThroughAll"

# Sketch on XY plane
sketch23 = body.newObject("Sketcher::SketchObject", "Sketch022")
sketch23.AttachmentSupport = (doc.getObject("XY_Plane"), [""])
sketch23.MapMode = "FlatFace"
sketch23.AttachmentOffset = App.Placement(App.Vector(0, 0, 2), App.Rotation())
add_polygon(sketch23, [(34, 7), (34, 0), (41, 0), (41, 7)])  # lines 0-3
add_polygon(sketch23, [(34, 40), (34, 33), (41, 33), (41, 40)])  # lines 4-7
add_polygon(sketch23, [(0, 7), (0, 0), (7, 0), (7, 7)])  # lines 8-11
add_polygon(sketch23, [(0, 40), (0, 33), (7, 33), (7, 40)])  # lines 12-15
sketch23.addConstraint([
    Sketcher.Constraint("Vertical", 0),
    Sketcher.Constraint("Horizontal", 1),
    Sketcher.Constraint("Vertical", 2),
    Sketcher.Constraint("Horizontal", 3),
    Sketcher.Constraint("Vertical", 4),
    Sketcher.Constraint("Horizontal", 5),
    Sketcher.Constraint("Vertical", 6),
    Sketcher.Constraint("Horizontal", 7),
    Sketcher.Constraint("Vertical", 8),
    Sketcher.Constraint("Horizontal", 9),
    Sketcher.Constraint("Vertical", 10),
    Sketcher.Constraint("Horizontal", 11),
    Sketcher.Constraint("Vertical", 12),
    Sketcher.Constraint("Horizontal", 13),
    Sketcher.Constraint("Vertical", 14),
    Sketcher.Constraint("Horizontal", 15),
    Sketcher.Constraint("Horizontal", 1, 2, 8, 2),
    Sketcher.Constraint("Horizontal", 3, 2, 10, 2),
    Sketcher.Constraint("Horizontal", 5, 2, 12, 2),
    Sketcher.Constraint("Horizontal", 7, 2, 14, 2),
    Sketcher.Constraint("Vertical", 3, 2, 4, 2),
    Sketcher.Constraint("Vertical", 2, 2, 5, 2),
    Sketcher.Constraint("Vertical", 11, 2, 12, 2),
    Sketcher.Constraint("Vertical", 10, 2, 13, 2),
    Sketcher.Constraint("Equal", 7, 9),
    Sketcher.Constraint("Equal", 15, 0),
    Sketcher.Constraint("Equal", 2, 4),
    Sketcher.Constraint("DistanceY", -1, 1, 6, 2, 40.25),
    Sketcher.Constraint("DistanceX", -1, 1, 8, 2, 0.25),
    Sketcher.Constraint("DistanceY", 3, 2, 4, 2, 26.17),
    Sketcher.Constraint("DistanceX", 9, 2, 0, 2, 26.17),
    Sketcher.Constraint("DistanceX", 1, 1, 1, 2, 7.1929),
])
pocket21 = body.newObject("PartDesign::Pocket", "Pocket020")
pocket21.Profile = sketch23
pocket21.Length = 0.5
pocket21.Reversed = True

doc.recompute()
